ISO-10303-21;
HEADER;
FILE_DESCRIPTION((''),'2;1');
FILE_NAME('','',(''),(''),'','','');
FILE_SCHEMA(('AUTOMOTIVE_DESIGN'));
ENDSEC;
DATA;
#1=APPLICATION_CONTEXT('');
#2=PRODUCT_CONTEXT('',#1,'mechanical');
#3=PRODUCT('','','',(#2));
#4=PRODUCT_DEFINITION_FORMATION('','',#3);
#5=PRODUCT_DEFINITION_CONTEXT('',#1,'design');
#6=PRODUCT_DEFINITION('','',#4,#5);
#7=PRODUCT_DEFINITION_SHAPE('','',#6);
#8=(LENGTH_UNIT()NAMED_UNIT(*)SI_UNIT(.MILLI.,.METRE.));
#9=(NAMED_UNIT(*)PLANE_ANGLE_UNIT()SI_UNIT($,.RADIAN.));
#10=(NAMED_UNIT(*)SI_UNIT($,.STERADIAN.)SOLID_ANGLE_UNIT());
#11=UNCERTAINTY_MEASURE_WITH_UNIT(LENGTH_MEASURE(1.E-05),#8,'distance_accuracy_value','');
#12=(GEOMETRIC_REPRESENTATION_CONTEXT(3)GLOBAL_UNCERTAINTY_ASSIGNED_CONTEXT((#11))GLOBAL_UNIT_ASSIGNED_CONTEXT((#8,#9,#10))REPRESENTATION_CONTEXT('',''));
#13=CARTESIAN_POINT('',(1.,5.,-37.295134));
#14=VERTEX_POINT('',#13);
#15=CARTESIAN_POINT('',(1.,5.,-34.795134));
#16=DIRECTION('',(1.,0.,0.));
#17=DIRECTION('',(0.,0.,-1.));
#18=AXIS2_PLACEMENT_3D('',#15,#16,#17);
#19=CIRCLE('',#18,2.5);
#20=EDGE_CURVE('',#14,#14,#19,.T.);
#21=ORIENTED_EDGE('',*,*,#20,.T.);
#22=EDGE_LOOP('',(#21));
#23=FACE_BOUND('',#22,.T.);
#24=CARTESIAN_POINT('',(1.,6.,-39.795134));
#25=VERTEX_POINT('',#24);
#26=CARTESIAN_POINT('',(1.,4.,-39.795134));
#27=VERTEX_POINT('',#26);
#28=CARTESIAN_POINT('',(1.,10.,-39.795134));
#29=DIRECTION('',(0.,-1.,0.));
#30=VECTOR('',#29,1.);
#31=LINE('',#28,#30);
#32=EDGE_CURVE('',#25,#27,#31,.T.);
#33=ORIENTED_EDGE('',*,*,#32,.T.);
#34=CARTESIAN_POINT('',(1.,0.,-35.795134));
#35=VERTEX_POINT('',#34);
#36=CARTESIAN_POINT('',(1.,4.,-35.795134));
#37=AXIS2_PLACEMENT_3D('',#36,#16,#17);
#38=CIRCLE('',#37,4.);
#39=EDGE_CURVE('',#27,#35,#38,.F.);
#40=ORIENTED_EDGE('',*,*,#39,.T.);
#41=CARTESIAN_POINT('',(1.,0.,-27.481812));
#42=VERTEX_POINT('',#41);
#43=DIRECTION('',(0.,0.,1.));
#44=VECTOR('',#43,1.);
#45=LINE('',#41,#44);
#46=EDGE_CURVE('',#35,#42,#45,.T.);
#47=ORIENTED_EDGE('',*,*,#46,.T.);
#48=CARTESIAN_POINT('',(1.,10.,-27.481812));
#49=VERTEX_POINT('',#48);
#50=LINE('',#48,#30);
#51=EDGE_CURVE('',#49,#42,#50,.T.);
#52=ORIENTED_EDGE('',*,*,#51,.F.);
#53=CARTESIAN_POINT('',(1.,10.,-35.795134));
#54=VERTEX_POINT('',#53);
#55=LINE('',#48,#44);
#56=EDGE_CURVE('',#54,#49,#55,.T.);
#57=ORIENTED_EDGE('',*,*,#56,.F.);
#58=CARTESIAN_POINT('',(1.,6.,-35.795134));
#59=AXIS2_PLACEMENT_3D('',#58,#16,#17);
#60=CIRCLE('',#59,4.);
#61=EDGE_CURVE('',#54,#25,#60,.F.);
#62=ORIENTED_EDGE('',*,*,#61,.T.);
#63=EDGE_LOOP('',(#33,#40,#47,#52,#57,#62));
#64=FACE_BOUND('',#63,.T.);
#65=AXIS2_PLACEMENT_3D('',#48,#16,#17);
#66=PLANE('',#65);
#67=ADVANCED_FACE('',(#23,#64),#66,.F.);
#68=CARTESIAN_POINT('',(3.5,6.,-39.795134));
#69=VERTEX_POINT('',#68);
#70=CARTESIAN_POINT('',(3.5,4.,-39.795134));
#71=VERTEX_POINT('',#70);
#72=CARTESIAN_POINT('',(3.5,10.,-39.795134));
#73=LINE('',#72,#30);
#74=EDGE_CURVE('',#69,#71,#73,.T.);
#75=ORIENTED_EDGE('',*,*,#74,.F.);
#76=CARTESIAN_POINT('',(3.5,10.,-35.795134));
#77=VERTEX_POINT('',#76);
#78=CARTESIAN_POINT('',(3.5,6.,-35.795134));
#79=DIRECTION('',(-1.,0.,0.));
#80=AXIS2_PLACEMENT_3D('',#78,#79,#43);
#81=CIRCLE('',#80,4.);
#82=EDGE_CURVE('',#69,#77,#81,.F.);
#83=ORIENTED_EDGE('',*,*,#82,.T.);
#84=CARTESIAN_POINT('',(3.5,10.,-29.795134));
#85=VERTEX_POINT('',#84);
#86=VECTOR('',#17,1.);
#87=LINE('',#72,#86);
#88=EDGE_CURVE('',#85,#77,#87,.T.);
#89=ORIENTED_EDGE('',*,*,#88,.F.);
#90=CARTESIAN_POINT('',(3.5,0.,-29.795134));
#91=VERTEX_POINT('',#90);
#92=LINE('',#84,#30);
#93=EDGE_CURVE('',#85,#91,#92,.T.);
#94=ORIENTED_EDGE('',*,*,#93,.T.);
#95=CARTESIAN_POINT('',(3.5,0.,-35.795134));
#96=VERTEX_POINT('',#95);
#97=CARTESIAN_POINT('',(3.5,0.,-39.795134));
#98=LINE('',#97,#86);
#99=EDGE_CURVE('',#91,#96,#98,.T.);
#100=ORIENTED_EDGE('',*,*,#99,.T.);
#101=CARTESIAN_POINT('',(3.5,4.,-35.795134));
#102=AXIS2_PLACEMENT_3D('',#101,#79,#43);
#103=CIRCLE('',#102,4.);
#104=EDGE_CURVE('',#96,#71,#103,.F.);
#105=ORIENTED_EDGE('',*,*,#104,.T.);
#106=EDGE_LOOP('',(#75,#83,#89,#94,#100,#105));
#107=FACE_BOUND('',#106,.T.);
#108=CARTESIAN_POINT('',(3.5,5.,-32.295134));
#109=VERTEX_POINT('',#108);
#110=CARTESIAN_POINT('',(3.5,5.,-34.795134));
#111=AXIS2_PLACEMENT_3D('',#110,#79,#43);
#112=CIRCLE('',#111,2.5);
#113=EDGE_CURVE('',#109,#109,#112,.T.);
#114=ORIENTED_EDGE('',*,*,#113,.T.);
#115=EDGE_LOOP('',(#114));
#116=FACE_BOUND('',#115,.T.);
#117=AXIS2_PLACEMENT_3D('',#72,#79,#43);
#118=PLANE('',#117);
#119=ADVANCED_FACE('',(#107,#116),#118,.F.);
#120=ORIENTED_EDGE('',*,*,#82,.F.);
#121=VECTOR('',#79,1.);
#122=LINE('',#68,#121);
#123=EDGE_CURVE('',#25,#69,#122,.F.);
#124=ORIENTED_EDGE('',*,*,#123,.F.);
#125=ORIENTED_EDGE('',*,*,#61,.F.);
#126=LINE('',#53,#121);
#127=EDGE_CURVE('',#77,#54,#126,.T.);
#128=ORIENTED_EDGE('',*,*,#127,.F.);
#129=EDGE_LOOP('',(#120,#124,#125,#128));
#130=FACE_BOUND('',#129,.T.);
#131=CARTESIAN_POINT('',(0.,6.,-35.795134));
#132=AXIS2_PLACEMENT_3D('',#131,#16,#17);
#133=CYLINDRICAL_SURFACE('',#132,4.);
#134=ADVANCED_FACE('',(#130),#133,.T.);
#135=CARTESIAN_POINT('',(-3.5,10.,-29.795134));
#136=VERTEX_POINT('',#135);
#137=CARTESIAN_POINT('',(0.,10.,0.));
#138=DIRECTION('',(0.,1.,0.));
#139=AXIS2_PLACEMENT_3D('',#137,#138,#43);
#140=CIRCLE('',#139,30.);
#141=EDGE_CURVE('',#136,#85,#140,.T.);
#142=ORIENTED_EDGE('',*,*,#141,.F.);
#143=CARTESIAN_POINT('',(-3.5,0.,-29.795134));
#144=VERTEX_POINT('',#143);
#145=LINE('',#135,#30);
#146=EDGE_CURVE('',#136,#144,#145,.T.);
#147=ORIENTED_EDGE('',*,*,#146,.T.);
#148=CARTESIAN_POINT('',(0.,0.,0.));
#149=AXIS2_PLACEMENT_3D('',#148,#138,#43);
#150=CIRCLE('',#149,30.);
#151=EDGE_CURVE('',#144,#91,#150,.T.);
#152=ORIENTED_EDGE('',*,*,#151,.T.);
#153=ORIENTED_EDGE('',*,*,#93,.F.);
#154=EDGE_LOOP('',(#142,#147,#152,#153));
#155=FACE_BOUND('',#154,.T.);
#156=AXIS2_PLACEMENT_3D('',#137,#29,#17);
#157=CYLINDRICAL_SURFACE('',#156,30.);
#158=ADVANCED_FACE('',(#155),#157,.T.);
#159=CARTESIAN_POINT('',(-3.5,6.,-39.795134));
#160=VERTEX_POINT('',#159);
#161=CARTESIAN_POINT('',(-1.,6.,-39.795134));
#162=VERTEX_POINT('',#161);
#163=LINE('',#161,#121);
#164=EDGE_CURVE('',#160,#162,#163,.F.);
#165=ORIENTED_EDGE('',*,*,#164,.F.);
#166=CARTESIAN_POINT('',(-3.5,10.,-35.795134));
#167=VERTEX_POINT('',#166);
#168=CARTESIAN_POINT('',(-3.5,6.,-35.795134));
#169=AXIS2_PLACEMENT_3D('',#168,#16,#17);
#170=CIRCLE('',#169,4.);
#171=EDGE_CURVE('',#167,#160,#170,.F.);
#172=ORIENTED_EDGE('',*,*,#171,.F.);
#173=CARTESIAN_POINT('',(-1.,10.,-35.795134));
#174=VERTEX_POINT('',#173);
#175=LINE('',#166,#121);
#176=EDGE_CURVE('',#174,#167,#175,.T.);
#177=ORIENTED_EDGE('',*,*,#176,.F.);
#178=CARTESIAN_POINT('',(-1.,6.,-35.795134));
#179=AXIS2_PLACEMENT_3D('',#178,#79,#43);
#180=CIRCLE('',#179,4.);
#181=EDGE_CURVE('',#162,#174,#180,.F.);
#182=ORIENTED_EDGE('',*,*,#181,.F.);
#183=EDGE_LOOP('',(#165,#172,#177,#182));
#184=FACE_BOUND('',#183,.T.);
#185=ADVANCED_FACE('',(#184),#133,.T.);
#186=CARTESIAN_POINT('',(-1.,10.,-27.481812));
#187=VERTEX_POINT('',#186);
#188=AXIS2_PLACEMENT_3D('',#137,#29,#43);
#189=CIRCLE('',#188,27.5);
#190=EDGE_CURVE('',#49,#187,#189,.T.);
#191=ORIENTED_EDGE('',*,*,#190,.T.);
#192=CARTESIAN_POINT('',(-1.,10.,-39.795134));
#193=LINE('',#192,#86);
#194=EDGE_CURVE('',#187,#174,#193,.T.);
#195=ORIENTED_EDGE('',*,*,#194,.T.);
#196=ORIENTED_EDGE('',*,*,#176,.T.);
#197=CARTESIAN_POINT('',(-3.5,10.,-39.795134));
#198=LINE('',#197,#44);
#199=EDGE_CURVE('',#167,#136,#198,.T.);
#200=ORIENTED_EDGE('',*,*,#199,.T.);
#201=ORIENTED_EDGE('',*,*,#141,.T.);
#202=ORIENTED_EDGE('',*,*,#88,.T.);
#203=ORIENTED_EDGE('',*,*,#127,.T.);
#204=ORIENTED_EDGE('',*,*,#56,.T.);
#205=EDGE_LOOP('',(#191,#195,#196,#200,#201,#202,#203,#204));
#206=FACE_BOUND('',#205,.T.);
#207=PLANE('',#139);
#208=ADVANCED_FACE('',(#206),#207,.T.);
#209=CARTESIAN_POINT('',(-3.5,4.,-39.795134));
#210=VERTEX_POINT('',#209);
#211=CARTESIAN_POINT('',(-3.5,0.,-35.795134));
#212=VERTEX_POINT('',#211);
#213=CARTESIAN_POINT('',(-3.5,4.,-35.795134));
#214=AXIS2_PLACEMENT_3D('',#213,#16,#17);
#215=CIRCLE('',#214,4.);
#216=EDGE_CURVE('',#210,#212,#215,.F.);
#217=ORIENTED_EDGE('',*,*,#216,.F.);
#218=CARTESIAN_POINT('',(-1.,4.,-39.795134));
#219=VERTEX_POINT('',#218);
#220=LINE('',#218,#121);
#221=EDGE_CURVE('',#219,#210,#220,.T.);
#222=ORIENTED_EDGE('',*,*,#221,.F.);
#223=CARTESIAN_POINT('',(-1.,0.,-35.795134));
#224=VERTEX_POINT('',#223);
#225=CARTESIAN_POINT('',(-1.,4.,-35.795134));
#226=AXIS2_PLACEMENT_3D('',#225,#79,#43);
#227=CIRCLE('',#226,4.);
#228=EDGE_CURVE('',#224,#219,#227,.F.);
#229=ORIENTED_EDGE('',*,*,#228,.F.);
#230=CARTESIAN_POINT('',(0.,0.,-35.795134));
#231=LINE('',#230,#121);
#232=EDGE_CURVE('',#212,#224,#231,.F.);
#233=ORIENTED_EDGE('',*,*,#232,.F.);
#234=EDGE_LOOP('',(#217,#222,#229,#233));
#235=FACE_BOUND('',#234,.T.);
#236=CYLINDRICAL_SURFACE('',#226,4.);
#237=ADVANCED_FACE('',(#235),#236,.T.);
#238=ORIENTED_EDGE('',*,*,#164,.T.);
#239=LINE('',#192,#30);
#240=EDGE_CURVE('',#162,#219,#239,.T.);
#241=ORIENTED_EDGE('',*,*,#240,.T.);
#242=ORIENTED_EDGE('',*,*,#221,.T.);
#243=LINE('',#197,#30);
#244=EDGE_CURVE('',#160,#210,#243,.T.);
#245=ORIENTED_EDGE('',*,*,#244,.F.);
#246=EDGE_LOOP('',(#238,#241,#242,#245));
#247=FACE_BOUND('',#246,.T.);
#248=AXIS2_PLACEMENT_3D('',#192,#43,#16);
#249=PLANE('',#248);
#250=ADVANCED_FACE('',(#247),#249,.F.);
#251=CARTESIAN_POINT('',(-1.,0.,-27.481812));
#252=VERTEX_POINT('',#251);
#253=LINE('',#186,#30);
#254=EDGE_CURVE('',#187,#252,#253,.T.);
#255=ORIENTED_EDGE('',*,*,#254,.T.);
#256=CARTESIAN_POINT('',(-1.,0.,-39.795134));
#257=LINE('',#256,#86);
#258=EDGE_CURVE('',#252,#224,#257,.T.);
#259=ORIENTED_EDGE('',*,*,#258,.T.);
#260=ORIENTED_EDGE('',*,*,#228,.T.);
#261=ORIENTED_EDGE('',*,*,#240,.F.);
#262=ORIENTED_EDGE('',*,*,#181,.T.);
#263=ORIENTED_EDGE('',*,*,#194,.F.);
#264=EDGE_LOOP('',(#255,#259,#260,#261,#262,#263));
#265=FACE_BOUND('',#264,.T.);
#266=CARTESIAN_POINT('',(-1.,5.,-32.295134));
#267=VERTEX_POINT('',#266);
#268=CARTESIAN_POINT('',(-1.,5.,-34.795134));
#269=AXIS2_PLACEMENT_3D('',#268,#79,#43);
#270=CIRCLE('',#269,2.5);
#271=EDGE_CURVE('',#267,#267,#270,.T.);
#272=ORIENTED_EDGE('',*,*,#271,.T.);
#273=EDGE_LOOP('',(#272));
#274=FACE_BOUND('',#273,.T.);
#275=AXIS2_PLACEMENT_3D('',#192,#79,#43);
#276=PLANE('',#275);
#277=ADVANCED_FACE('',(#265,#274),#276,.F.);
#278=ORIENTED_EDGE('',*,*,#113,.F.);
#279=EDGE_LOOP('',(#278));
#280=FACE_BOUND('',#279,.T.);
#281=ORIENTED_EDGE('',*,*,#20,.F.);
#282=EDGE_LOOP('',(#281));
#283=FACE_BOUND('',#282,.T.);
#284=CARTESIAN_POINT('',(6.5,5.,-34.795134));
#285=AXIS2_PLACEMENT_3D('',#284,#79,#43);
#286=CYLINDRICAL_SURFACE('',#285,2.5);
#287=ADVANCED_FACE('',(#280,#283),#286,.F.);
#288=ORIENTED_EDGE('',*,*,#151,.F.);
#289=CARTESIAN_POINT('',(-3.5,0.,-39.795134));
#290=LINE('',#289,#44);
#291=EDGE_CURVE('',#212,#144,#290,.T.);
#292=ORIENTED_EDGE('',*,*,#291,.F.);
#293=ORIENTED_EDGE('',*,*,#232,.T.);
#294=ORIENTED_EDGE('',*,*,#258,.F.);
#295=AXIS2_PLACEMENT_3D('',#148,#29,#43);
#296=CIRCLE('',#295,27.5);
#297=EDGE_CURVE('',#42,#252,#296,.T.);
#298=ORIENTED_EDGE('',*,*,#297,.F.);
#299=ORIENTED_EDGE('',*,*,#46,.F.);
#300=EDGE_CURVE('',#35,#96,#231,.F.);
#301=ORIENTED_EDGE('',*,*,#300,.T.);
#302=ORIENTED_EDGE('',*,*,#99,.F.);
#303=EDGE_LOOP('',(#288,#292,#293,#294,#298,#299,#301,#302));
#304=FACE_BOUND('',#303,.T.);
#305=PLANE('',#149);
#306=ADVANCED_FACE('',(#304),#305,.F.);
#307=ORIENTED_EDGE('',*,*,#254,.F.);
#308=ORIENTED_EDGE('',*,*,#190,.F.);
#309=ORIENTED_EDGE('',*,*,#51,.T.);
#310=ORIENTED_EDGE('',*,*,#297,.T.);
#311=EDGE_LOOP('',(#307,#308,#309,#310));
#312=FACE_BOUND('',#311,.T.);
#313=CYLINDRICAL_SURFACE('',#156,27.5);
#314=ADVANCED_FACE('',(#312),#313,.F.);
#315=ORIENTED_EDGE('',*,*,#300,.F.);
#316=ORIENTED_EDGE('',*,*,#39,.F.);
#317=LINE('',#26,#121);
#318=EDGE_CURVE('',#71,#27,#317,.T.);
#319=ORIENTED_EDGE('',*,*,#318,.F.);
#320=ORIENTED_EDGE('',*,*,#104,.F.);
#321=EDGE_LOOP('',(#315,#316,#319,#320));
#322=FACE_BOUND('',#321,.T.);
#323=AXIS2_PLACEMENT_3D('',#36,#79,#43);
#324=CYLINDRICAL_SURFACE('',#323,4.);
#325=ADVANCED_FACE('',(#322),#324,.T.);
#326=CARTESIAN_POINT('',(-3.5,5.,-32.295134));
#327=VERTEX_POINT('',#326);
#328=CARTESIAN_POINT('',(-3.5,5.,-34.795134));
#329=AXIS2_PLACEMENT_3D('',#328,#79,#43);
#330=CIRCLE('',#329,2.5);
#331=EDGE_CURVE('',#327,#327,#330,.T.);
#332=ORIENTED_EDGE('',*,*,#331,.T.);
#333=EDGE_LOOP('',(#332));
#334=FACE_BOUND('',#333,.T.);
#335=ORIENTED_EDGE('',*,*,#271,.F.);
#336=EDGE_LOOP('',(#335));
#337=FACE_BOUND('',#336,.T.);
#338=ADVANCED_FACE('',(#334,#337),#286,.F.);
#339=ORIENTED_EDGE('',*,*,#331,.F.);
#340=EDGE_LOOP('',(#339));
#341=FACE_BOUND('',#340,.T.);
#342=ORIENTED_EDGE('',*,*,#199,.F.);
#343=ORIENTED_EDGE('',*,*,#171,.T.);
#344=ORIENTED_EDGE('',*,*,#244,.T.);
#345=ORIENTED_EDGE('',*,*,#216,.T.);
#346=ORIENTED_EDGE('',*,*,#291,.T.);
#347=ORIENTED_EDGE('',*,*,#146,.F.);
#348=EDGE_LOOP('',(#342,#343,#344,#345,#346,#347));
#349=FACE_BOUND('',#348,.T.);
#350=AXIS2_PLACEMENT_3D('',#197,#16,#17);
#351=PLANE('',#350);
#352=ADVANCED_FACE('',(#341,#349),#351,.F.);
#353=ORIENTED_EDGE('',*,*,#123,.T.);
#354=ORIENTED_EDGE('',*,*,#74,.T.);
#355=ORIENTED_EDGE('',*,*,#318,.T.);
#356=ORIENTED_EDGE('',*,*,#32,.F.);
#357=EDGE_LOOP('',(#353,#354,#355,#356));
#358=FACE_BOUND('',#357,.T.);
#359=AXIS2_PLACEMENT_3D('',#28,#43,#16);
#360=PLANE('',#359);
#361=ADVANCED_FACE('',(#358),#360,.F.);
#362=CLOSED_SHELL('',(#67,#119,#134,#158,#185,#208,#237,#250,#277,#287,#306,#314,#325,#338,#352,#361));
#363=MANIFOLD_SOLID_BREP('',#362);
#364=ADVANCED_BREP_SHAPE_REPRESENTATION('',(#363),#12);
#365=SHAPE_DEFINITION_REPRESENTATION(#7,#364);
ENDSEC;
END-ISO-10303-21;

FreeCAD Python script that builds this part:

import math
import FreeCAD as App
import Part
import Sketcher
from FreeCAD import Vector


def edges_at(feature, points):
    """Names of the edges that pass closest to the given points."""
    edges = feature.Shape.Edges
    near = lambda p: min(range(len(edges)), key=lambda i: edges[i].distToShape(Part.Vertex(*p))[0])
    return sorted({f"Edge{near(p) + 1}" for p in points})

doc = App.newDocument("Part")
body = doc.addObject("PartDesign::Body", "Body")

# Sketch on XZ plane
sketch1 = body.newObject("Sketcher::SketchObject", "Sketch")
sketch1.AttachmentSupport = (doc.getObject("XZ_Plane"), [""])
sketch1.MapMode = "FlatFace"
sketch1.addGeometry([
    Part.LineSegment(Vector(-1, -27.5, 0), Vector(-1, -39.8, 0)),  # 0
    Part.LineSegment(Vector(-1, -39.8, 0), Vector(-3.5, -39.8, 0)),  # 1
    Part.LineSegment(Vector(-3.5, -39.8, 0), Vector(-3.5, -29.8, 0)),  # 2
    Part.ArcOfCircle(Part.Circle(Vector(0, 0, 0), Vector(0, 0, 1), 30), math.radians(-83), math.radians(263)),  # 3
    Part.LineSegment(Vector(3.5, -29.8, 0), Vector(3.5, -39.8, 0)),  # 4
    Part.LineSegment(Vector(3.5, -39.8, 0), Vector(1, -39.8, 0)),  # 5
    Part.LineSegment(Vector(1, -39.8, 0), Vector(1, -27.5, 0)),  # 6
    Part.ArcOfCircle(Part.Circle(Vector(0, 0, 0), Vector(0, 0, 1), 27.5), math.radians(-88), math.radians(268)),  # 7
], False)
sketch1.addConstraint([
    Sketcher.Constraint("Coincident", 0, 2, 1, 1),
    Sketcher.Constraint("Coincident", 1, 2, 2, 1),
    Sketcher.Constraint("Coincident", 2, 2, 3, 2),
    Sketcher.Constraint("Coincident", 3, 1, 4, 1),
    Sketcher.Constraint("Coincident", 4, 2, 5, 1),
    Sketcher.Constraint("Coincident", 5, 2, 6, 1),
    Sketcher.Constraint("Coincident", 6, 2, 7, 1),
    Sketcher.Constraint("Coincident", 7, 2, 0, 1),
    Sketcher.Constraint("Vertical", 0),
    Sketcher.Constraint("Horizontal", 1),
    Sketcher.Constraint("Vertical", 2),
    Sketcher.Constraint("Vertical", 4),
    Sketcher.Constraint("Horizontal", 5),
    Sketcher.Constraint("Vertical", 6),
    Sketcher.Constraint("Coincident", 3, 3, -1, 1),
    Sketcher.Constraint("Coincident", 7, 3, -1, 1),
    Sketcher.Constraint("Symmetric", 1, 2, 4, 2, -2),
    Sketcher.Constraint("Horizontal", 6, 2, 7, 2),
    Sketcher.Constraint("Radius", 3, 30.0),
    Sketcher.Constraint("Radius", 7, 27.5),
    Sketcher.Constraint("DistanceY", 2, 1, 2, 2, 10.0),
    Sketcher.Constraint("DistanceX", 1, 2, 1, 1, 2.5),
    Sketcher.Constraint("DistanceX", 0, 2, -1, 1, 1.0),
])
pad1 = body.newObject("PartDesign::Pad", "Pad")
pad1.Profile = sketch1
pad1.Length = 10
pad1.Reversed = True

# Sketch on YZ plane
sketch2 = body.newObject("Sketcher::SketchObject", "Sketch001")
sketch2.AttachmentSupport = (doc.getObject("YZ_Plane"), [""])
sketch2.MapMode = "FlatFace"
sketch2.AttachmentOffset = App.Placement(Vector(0, 0, -3.5), App.Rotation())
sketch2.addGeometry(Part.Circle(Vector(5, -34.8, 0), Vector(0, 0, 1), 2.5), False)
sketch2.addConstraint([
    Sketcher.Constraint("Diameter", 0, 5.0),
    Sketcher.Constraint("DistanceX", -1, 1, 0, 3, 5.0),
    Sketcher.Constraint("DistanceY", 0, 3, -1, 1, 34.795134),
])
pocket1 = body.newObject("PartDesign::Pocket", "Pocket")
pocket1.Profile = sketch2
pocket1.Length = 10
pocket1.Reversed = True
doc.recompute()

fillet = body.newObject("PartDesign::Fillet", "Fillet")
fillet.Base = (pocket1, edges_at(pocket1, [
    (-2.25, 0, -39.795),
    (-2.25, 10, -39.795),
    (2.25, 10, -39.795),
    (2.25, 0, -39.795),
]))
fillet.Radius = 4

doc.recompute()
